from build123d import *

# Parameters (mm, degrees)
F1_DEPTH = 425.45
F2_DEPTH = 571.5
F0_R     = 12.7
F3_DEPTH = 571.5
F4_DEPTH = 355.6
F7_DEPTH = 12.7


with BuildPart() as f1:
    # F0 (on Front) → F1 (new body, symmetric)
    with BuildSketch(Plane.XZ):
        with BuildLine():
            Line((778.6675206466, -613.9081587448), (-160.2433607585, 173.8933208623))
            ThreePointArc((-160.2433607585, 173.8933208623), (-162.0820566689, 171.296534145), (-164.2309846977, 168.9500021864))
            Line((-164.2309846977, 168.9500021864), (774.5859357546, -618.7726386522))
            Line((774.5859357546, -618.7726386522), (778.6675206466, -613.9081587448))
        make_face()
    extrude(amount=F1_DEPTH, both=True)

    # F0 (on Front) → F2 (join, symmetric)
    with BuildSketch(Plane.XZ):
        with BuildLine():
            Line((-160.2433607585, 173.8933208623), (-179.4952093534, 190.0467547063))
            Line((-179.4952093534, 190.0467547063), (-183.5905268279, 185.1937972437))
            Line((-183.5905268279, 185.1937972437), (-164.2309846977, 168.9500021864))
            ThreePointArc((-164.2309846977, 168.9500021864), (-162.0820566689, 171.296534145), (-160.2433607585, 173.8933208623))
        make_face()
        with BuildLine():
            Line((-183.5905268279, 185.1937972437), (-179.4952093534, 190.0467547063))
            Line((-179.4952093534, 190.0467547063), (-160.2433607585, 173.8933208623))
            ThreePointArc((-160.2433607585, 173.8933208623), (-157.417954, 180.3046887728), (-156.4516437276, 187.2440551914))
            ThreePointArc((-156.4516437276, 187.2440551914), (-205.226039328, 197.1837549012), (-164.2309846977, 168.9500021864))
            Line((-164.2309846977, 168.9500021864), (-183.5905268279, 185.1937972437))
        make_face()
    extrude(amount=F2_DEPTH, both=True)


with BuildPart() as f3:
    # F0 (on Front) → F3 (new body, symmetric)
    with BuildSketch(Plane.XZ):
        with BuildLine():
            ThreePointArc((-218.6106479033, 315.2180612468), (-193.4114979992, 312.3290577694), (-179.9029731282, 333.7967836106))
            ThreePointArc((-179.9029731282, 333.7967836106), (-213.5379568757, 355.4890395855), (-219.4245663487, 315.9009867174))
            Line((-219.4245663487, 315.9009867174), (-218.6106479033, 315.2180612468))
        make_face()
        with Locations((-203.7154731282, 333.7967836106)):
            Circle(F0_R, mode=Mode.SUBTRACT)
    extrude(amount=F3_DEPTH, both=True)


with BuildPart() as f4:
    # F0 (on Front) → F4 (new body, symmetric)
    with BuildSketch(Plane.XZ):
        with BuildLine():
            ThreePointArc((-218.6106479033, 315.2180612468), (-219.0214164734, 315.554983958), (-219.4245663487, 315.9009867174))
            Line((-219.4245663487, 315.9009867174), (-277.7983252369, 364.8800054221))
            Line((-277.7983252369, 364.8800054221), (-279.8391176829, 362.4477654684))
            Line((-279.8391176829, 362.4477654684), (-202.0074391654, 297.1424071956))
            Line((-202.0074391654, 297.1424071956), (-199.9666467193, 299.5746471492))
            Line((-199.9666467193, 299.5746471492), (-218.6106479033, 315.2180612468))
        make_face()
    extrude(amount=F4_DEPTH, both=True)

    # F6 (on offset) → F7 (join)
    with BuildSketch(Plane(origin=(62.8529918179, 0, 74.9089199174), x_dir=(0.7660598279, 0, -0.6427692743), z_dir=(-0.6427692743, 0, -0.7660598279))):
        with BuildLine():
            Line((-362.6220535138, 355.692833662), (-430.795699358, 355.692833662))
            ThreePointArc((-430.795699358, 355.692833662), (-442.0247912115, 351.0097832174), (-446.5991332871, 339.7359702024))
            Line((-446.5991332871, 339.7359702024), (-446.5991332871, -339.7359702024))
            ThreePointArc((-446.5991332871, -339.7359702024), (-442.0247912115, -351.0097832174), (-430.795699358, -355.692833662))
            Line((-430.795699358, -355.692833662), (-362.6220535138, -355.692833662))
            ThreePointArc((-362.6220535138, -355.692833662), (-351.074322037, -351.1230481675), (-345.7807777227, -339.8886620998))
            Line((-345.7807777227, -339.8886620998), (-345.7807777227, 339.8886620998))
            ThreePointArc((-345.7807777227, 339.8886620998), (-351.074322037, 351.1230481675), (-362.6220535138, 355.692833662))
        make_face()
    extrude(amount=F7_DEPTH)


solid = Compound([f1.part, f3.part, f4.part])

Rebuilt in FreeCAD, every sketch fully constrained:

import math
import FreeCAD as App
import Part
import Sketcher

V = App.Vector
Q = App.Units.Quantity

doc = App.newDocument("Part")
params = doc.addObject("Spreadsheet::Sheet", "Params")
for row, (alias, value) in enumerate([
    ("sketch1_radius", "1 in"),
    ("sketch1_length", "0.25 in"),
    ("pad1_length", "33.5 in"),
    ("sketch2_radius", "1 in"),
    ("pad2_length", "45 in"),
    ("sketch3_diameter", "1 in"),
    ("sketch3_radius", "0.9375 in"),
    ("pad3_length", "45 in"),
    ("sketch4_length", "3 in"),
    ("sketch4_length2", "4 in"),
    ("sketch4_radius", "0.9375 in"),
    ("sketch4_length3", "0.125 in"),
    ("pad4_length", "28 in"),
    ("pad5_length", "0.5 in"),
], start=1):
    params.set(f"A{row}", alias)
    params.set(f"B{row}", "=" + value)
    params.setAlias(f"B{row}", alias)

body = doc.addObject("PartDesign::Body", "Body")

# Sketch on XZ plane
sketch1 = doc.addObject("Sketcher::SketchObject", "Sketch")
body.addObject(sketch1)
sketch1.AttachmentSupport = (doc.XZ_Plane, [""])
sketch1.MapMode = "FlatFace"
sketch1.addGeometry([
    Part.LineSegment(V(778.667521, -613.908159, 0), V(-160.243361, 173.893321, 0)),
    Part.ArcOfCircle(Part.Circle(V(-181.851644, 187.244055, 0), V(0, 0, 1), 25.4), math.radians(-46.074159), math.radians(-31.709954)),
    Part.LineSegment(V(-164.230985, 168.950002, 0), V(774.585936, -618.772639, 0)),
    Part.LineSegment(V(774.585936, -618.772639, 0), V(778.667521, -613.908159, 0)),
], False)
sketch1.addConstraint([
    Sketcher.Constraint("Coincident", 0, 2, 1, 2),
    Sketcher.Constraint("Coincident", 1, 1, 2, 1),
    Sketcher.Constraint("Coincident", 2, 2, 3, 1),
    Sketcher.Constraint("Coincident", 3, 2, 0, 1),
    Sketcher.Constraint("Parallel", 0, 2),
    Sketcher.Constraint("Perpendicular", 2, 3),
    Sketcher.Constraint("Radius", 1, Q("1 in")),
    Sketcher.Constraint("Distance", 3, Q("0.25 in")),
    Sketcher.Constraint("Distance", 2, 1225.513839),
    Sketcher.Constraint("DistanceX", 0, 2, -1, 1, 160.243361),
    Sketcher.Constraint("DistanceY", -1, 1, 0, 2, 173.893321),
    Sketcher.Constraint("DistanceY", 2, 2, -1, 1, 618.772639),
    Sketcher.Constraint("DistanceX", -1, 1, 3, 2, 778.667521),
])
sketch1.setExpression("Constraints[6]", "Params.sketch1_radius")
sketch1.setExpression("Constraints[7]", "Params.sketch1_length")
pad1 = doc.addObject("PartDesign::Pad", "Pad")
body.addObject(pad1)
pad1.Profile = sketch1
pad1.setExpression("Length", "Params.pad1_length")
pad1.Midplane = True

# Sketch on XZ plane
sketch2 = doc.addObject("Sketcher::SketchObject", "Sketch001")
body.addObject(sketch2)
sketch2.AttachmentSupport = (doc.XZ_Plane, [""])
sketch2.MapMode = "FlatFace"
sketch2.addGeometry([
    Part.ArcOfCircle(Part.Circle(V(-181.851644, 187.244055, 0), V(0, 0, 1), 25.4), math.radians(-46.074159), math.radians(-31.709954)),
    Part.ArcOfCircle(Part.Circle(V(-181.851644, 187.244055, 0), V(0, 0, 1), 25.4), math.radians(-31.709954), math.radians(0)),
    Part.ArcOfCircle(Part.Circle(V(-181.851644, 187.244055, 0), V(0, 0, 1), 25.4), math.radians(0), math.radians(313.925841)),
], False)
sketch2.addConstraint([
    Sketcher.Constraint("Tangent", 0, 2, 1, 1),
    Sketcher.Constraint("Tangent", 1, 2, 2, 1),
    Sketcher.Constraint("Tangent", 2, 2, 0, 1),
    Sketcher.Constraint("Horizontal", 2, 3, 1, 2),
    Sketcher.Constraint("Radius", 0, Q("1 in")),
    Sketcher.Constraint("DistanceX", 0, 2, -1, 1, 160.243361),
    Sketcher.Constraint("DistanceY", -1, 1, 0, 2, 173.893321),
    Sketcher.Constraint("DistanceY", 2, 2, 0, 2, 4.943319),
    Sketcher.Constraint("DistanceX", 2, 2, 1, 2, 7.779341),
])
sketch2.setExpression("Constraints[4]", "Params.sketch2_radius")
pad2 = doc.addObject("PartDesign::Pad", "Pad001")
body.addObject(pad2)
pad2.Profile = sketch2
pad2.setExpression("Length", "Params.pad2_length")
pad2.Midplane = True
body2 = doc.addObject("PartDesign::Body", "Body001")

# Sketch on XZ plane
sketch3 = doc.addObject("Sketcher::SketchObject", "Sketch002")
body2.addObject(sketch3)
sketch3.AttachmentSupport = (doc.getObject("XZ_Plane001"), [""])
sketch3.MapMode = "FlatFace"
sketch3.addGeometry([
    Part.ArcOfCircle(Part.Circle(V(-203.715473, 333.796784, 0), V(0, 0, 1), 23.8125), math.radians(-128.720302), math.radians(228.723045)),
    Part.LineSegment(V(-219.424566, 315.900987, 0), V(-218.610648, 315.218061, 0)),
    Part.Circle(V(-203.715473, 333.796784, 0), V(0, 0, 1), 12.7),
], False)
sketch3.addConstraint([
    Sketcher.Constraint("Coincident", 0, 1, 1, 2),
    Sketcher.Constraint("Coincident", 1, 1, 0, 2),
    Sketcher.Constraint("Coincident", 2, 3, 0, 3),
    Sketcher.Constraint("Diameter", 2, Q("1 in")),
    Sketcher.Constraint("Radius", 0, Q("0.9375 in")),
    Sketcher.Constraint("DistanceY", -1, 1, 0, 1, 315.218061),
    Sketcher.Constraint("DistanceX", 1, 1, 0, 1, 0.813918),
    Sketcher.Constraint("Distance", 1, 1.062474),
    Sketcher.Constraint("DistanceX", 0, 3, -1, 1, 203.715473),
])
sketch3.setExpression("Constraints[3]", "Params.sketch3_diameter")
sketch3.setExpression("Constraints[4]", "Params.sketch3_radius")
pad3 = doc.addObject("PartDesign::Pad", "Pad002")
body2.addObject(pad3)
pad3.Profile = sketch3
pad3.setExpression("Length", "Params.pad3_length")
pad3.Midplane = True
body3 = doc.addObject("PartDesign::Body", "Body002")

# Sketch on XZ plane
sketch4 = doc.addObject("Sketcher::SketchObject", "Sketch003")
body3.addObject(sketch4)
sketch4.AttachmentSupport = (doc.getObject("XZ_Plane002"), [""])
sketch4.MapMode = "FlatFace"
sketch4.addGeometry([
    Part.ArcOfCircle(Part.Circle(V(-203.715473, 333.796784, 0), V(0, 0, 1), 23.8125), math.radians(-131.276955), math.radians(-128.720302)),  # 0
    Part.LineSegment(V(-219.424566, 315.900987, 0), V(-277.798325, 364.880005, 0)),  # 1
    Part.LineSegment(V(-277.798325, 364.880005, 0), V(-279.839118, 362.447765, 0)),  # 2
    Part.LineSegment(V(-279.839118, 362.447765, 0), V(-202.007439, 297.142407, 0)),  # 3
    Part.LineSegment(V(-202.007439, 297.142407, 0), V(-199.966647, 299.574647, 0)),  # 4
    Part.LineSegment(V(-199.966647, 299.574647, 0), V(-218.610648, 315.218061, 0)),  # 5
], False)
sketch4.addConstraint([
    Sketcher.Constraint("Coincident", 0, 1, 1, 1),
    Sketcher.Constraint("Coincident", 1, 2, 2, 1),
    Sketcher.Constraint("Coincident", 2, 2, 3, 1),
    Sketcher.Constraint("Coincident", 3, 2, 4, 1),
    Sketcher.Constraint("Coincident", 4, 2, 5, 1),
    Sketcher.Constraint("Coincident", 5, 2, 0, 2),
    Sketcher.Constraint("Perpendicular", 1, 2),
    Sketcher.Constraint("Perpendicular", 2, 3),
    Sketcher.Constraint("Perpendicular", 3, 4),
    Sketcher.Constraint("Perpendicular", 4, 5),
    Sketcher.Constraint("Equal", 2, 4),
    Sketcher.Constraint("Distance", 1, Q("3 in")),
    Sketcher.Constraint("Distance", 3, Q("4 in")),
    Sketcher.Constraint("Radius", 0, Q("0.9375 in")),
    Sketcher.Constraint("Distance", 2, Q("0.125 in")),
    Sketcher.Constraint("DistanceY", 3, 2, 1, 2, 67.737598),
    Sketcher.Constraint("DistanceX", 5, 2, 4, 2, 18.644001),
    Sketcher.Constraint("DistanceX", 3, 2, -1, 1, 202.007439),
    Sketcher.Constraint("DistanceY", -1, 1, 5, 2, 315.218061),
])
sketch4.setExpression("Constraints[11]", "Params.sketch4_length")
sketch4.setExpression("Constraints[12]", "Params.sketch4_length2")
sketch4.setExpression("Constraints[13]", "Params.sketch4_radius")
sketch4.setExpression("Constraints[14]", "Params.sketch4_length3")
pad4 = doc.addObject("PartDesign::Pad", "Pad003")
body3.addObject(pad4)
pad4.Profile = sketch4
pad4.setExpression("Length", "Params.pad4_length")
pad4.Midplane = True

# Sketch on an angled plane
sketch5 = doc.addObject("Sketcher::SketchObject", "Sketch004")
body3.addObject(sketch5)
sketch5.Placement = App.Placement(V(62.852992, 0, 74.90892), App.Rotation(V(0.766059828, 0, -0.642769274), V(0, -1, 0), V(-0.642769274, 0, -0.766059828), "ZXY"))
sketch5.addGeometry([
    Part.LineSegment(V(-362.622053, 355.692833, 0), V(-430.795699, 355.692833, 0)),  # 0
    Part.ArcOfCircle(Part.Circle(V(-430.795699, 339.888662, 0), V(0, 0, 1), 15.804172), math.radians(90), math.radians(180.553571)),  # 1
    Part.LineSegment(V(-446.599133, 339.73597, 0), V(-446.599133, -339.73597, 0)),  # 2
    Part.ArcOfCircle(Part.Circle(V(-430.795699, -339.888662, 0), V(0, 0, 1), 15.804172), math.radians(179.446429), math.radians(270)),  # 3
    Part.LineSegment(V(-430.795699, -355.692833, 0), V(-362.622053, -355.692833, 0)),  # 4
    Part.ArcOfCircle(Part.Circle(V(-362.622053, -338.817529, 0), V(0, 0, 1), 16.875304), math.radians(-90), math.radians(-3.639204)),  # 5
    Part.LineSegment(V(-345.780778, -339.888662, 0), V(-345.780778, 339.888662, 0)),  # 6
    Part.ArcOfCircle(Part.Circle(V(-362.622053, 338.817529, 0), V(0, 0, 1), 16.875304), math.radians(3.639204), math.radians(90)),  # 7
], False)
sketch5.addConstraint([
    Sketcher.Constraint("Tangent", 0, 2, 1, 1),
    Sketcher.Constraint("Coincident", 1, 2, 2, 1),
    Sketcher.Constraint("Coincident", 2, 2, 3, 1),
    Sketcher.Constraint("Tangent", 3, 2, 4, 1),
    Sketcher.Constraint("Tangent", 4, 2, 5, 1),
    Sketcher.Constraint("Coincident", 5, 2, 6, 1),
    Sketcher.Constraint("Coincident", 6, 2, 7, 1),
    Sketcher.Constraint("Tangent", 7, 2, 0, 1),
    Sketcher.Constraint("Horizontal", 0),
    Sketcher.Constraint("Vertical", 2),
    Sketcher.Constraint("Horizontal", 4),
    Sketcher.Constraint("Vertical", 6),
    Sketcher.Constraint("Equal", 1, 3),
    Sketcher.Constraint("Equal", 5, 7),
    Sketcher.Constraint("Symmetric", 1, 3, 3, 3, -1),
    Sketcher.Constraint("Horizontal", 3, 3, 5, 2),
    Sketcher.Constraint("Horizontal", 1, 3, 6, 2),
    Sketcher.Constraint("Radius", 1, 15.804172),
    Sketcher.Constraint("Radius", 5, 16.875304),
    Sketcher.Constraint("DistanceY", 2, 2, 2, 1, 679.47194),
    Sketcher.Constraint("DistanceX", 1, 3, -1, 1, 430.795699),
    Sketcher.Constraint("DistanceY", 5, 3, 1, 2, 678.553499),
    Sketcher.Constraint("DistanceX", 0, 2, 0, 1, 68.173646),
])
pad5 = doc.addObject("PartDesign::Pad", "Pad004")
body3.addObject(pad5)
pad5.Profile = sketch5
pad5.setExpression("Length", "Params.pad5_length")

doc.recompute()
